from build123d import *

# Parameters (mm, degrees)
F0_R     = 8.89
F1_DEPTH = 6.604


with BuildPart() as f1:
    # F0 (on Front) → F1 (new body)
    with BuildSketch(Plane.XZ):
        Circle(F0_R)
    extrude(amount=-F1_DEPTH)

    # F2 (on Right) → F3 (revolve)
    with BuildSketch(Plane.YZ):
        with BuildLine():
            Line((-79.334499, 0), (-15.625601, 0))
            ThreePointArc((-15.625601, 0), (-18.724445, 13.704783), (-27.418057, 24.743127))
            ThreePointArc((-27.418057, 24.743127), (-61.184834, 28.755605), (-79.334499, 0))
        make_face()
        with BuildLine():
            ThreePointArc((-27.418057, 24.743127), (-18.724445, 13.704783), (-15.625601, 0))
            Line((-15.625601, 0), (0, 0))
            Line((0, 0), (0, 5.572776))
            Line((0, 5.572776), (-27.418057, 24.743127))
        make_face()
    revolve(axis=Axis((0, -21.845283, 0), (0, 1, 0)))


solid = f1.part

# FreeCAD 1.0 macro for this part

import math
import FreeCAD as App
import Part
import Sketcher
from FreeCAD import Vector
Q = App.Units.Quantity

doc = App.newDocument("Part")
body = doc.addObject("PartDesign::Body", "Body")

sketch1 = doc.addObject("Sketcher::SketchObject", "Sketch")
body.addObject(sketch1)
sketch1.AttachmentSupport = (doc.XZ_Plane, [""])
sketch1.MapMode = "FlatFace"
sketch1.addGeometry(Part.Circle(Vector(0, 0, 0), Vector(0, 0, 1), 9), False)
sketch1.addConstraint(Sketcher.Constraint("Coincident", 0, 3, -1, 1))
sketch1.addConstraint(Sketcher.Constraint("Diameter", 0, Q("0.7 in")))
pad1 = doc.addObject("PartDesign::Pad", "Pad")
body.addObject(pad1)
pad1.Profile = sketch1
pad1.Length = Q("0.26 in")
pad1.Reversed = True

sketch2 = doc.addObject("Sketcher::SketchObject", "Sketch001")
body.addObject(sketch2)
sketch2.AttachmentSupport = (doc.YZ_Plane, [""])
sketch2.MapMode = "FlatFace"
sketch2.addGeometry(Part.LineSegment(Vector(-79, 0, 0), Vector(0, 0, 0)), False)
sketch2.addGeometry(Part.LineSegment(Vector(0, 0, 0), Vector(0, 6, 0)), False)
sketch2.addGeometry(Part.LineSegment(Vector(0, 6, 0), Vector(-27, 25, 0)), False)
sketch2.addGeometry(Part.ArcOfCircle(Part.Circle(Vector(-47, 0, 0), Vector(0, 0, 1), 32), math.radians(51), math.radians(180)), False)
sketch2.addConstraint(Sketcher.Constraint("Coincident", 0, 2, 1, 1))
sketch2.addConstraint(Sketcher.Constraint("Coincident", 1, 2, 2, 1))
sketch2.addConstraint(Sketcher.Constraint("Coincident", 2, 2, 3, 1))
sketch2.addConstraint(Sketcher.Constraint("Coincident", 3, 2, 0, 1))
sketch2.addConstraint(Sketcher.Constraint("Horizontal", 0))
sketch2.addConstraint(Sketcher.Constraint("Vertical", 1))
sketch2.addConstraint(Sketcher.Constraint("Coincident", 0, 2, -1, 1))
sketch2.addConstraint(Sketcher.Constraint("PointOnObject", 3, 3, -1))
sketch2.addConstraint(Sketcher.Constraint("Radius", 3, 31.854449))
sketch2.addConstraint(Sketcher.Constraint("DistanceX", 0, 1, 0, 2, 79.334499))
sketch2.addConstraint(Sketcher.Constraint("DistanceY", 1, 1, 1, 2, 5.572776))
sketch2.addConstraint(Sketcher.Constraint("DistanceY", 1, 2, 2, 2, 19.170351))
revolution = doc.addObject("PartDesign::Revolution", "Revolution")
body.addObject(revolution)
revolution.Profile = sketch2
revolution.ReferenceAxis = (sketch2, ["H_Axis"])
revolution.Angle = 360

doc.recompute()
